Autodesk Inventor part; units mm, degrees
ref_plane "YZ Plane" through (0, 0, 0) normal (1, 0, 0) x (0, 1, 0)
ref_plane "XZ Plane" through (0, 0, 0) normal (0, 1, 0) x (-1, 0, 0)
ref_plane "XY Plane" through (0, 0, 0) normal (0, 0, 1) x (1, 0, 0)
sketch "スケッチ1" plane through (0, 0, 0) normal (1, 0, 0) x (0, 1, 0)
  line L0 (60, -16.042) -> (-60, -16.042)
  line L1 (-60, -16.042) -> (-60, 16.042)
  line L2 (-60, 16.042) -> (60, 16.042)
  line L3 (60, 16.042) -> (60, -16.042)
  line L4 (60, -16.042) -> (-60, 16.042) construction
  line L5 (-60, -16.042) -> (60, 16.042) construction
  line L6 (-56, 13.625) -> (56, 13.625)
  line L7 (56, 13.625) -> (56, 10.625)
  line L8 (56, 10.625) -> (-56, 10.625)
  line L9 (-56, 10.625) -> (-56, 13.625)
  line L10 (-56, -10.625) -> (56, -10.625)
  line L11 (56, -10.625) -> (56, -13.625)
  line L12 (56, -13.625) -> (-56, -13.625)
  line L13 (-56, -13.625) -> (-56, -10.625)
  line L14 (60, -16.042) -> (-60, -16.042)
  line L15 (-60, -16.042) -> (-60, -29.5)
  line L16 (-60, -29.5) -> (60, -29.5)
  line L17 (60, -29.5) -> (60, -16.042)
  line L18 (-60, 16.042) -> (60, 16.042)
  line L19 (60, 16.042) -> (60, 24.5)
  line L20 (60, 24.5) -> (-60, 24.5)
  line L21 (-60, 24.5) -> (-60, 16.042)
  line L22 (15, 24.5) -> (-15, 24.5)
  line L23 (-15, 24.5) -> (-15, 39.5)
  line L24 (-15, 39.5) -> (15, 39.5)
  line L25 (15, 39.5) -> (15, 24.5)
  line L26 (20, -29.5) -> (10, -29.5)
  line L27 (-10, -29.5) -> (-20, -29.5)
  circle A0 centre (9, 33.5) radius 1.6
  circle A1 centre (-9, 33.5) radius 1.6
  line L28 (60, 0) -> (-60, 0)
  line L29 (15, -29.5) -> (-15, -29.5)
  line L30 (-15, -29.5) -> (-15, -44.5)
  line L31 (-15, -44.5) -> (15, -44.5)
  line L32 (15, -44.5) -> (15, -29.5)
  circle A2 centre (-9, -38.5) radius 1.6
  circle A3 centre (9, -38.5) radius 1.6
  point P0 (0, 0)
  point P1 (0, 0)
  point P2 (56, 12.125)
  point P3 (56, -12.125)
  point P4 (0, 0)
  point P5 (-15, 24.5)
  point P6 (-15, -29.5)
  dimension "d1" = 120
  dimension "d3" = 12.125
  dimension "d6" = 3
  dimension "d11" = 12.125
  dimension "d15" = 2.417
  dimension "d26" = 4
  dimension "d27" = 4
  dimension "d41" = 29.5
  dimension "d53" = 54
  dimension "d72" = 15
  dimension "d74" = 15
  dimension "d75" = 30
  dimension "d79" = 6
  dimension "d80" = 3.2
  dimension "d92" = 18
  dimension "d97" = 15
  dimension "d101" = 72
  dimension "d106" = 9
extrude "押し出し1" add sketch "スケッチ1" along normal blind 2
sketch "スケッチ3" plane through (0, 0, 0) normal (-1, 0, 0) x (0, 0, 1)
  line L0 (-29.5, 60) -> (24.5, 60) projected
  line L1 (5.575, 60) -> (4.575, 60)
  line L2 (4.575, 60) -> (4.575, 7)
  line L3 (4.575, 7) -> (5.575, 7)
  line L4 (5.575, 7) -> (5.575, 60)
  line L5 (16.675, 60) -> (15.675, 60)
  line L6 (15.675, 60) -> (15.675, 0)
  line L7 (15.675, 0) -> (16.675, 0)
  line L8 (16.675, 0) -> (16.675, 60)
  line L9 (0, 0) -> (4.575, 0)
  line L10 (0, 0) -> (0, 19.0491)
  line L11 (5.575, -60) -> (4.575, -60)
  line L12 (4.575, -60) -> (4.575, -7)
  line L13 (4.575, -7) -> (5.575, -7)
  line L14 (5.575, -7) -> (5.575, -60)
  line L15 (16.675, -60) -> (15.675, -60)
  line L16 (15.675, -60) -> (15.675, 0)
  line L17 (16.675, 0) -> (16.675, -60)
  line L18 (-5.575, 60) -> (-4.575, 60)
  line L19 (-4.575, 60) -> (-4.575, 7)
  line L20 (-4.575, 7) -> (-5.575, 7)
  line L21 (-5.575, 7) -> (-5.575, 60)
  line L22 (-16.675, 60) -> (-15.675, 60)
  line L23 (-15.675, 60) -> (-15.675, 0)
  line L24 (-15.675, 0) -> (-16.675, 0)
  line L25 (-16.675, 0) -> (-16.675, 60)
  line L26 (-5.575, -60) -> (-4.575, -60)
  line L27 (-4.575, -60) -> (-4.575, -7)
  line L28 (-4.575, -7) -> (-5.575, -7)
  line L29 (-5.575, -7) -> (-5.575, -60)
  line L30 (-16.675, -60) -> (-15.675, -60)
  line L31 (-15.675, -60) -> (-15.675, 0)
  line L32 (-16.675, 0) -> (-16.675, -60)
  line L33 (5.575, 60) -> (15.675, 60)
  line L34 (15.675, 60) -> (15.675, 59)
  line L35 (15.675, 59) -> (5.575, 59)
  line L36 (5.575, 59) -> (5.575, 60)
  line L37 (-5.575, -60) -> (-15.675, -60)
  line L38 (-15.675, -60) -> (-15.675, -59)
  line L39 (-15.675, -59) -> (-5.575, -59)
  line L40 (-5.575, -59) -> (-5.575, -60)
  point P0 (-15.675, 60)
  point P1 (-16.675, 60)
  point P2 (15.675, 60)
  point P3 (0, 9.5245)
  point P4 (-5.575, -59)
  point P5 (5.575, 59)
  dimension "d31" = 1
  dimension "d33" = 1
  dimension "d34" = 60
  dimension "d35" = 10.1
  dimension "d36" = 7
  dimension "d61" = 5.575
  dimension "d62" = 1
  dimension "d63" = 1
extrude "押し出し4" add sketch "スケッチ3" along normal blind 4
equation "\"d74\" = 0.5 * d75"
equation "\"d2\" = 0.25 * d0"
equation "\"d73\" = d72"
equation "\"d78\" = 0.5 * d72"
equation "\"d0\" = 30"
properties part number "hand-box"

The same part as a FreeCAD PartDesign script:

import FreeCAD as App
import Part
import Sketcher

V = App.Vector

doc = App.newDocument("Part")
body = doc.addObject("PartDesign::Body", "Body")

sketch1 = body.newObject("Sketcher::SketchObject", "Sketch")
sketch1.AttachmentSupport = (doc.getObject("YZ_Plane"), [""])
sketch1.MapMode = "FlatFace"
sketch1.addGeometry(Part.LineSegment(V(60, -29.5, 0), V(60, 24.5, 0)), False)
sketch1.addGeometry(Part.LineSegment(V(60, 24.5, 0), V(15, 24.5, 0)), False)
sketch1.addGeometry(Part.LineSegment(V(15, 24.5, 0), V(15, 39.5, 0)), False)
sketch1.addGeometry(Part.LineSegment(V(15, 39.5, 0), V(-15, 39.5, 0)), False)
sketch1.addGeometry(Part.LineSegment(V(-15, 39.5, 0), V(-15, 24.5, 0)), False)
sketch1.addGeometry(Part.LineSegment(V(-15, 24.5, 0), V(-60, 24.5, 0)), False)
sketch1.addGeometry(Part.LineSegment(V(-60, 24.5, 0), V(-60, -29.5, 0)), False)
sketch1.addGeometry(Part.LineSegment(V(-60, -29.5, 0), V(-15, -29.5, 0)), False)
sketch1.addGeometry(Part.LineSegment(V(-15, -29.5, 0), V(-15, -44.5, 0)), False)
sketch1.addGeometry(Part.LineSegment(V(-15, -44.5, 0), V(15, -44.5, 0)), False)
sketch1.addGeometry(Part.LineSegment(V(15, -44.5, 0), V(15, -29.5, 0)), False)
sketch1.addGeometry(Part.LineSegment(V(15, -29.5, 0), V(60, -29.5, 0)), False)
sketch1.addGeometry(Part.Circle(V(9, -38.5, 0), V(0, 0, 1), 1.6), False)
sketch1.addGeometry(Part.Circle(V(-9, -38.5, 0), V(0, 0, 1), 1.6), False)
sketch1.addGeometry(Part.LineSegment(V(-56, -10.6, 0), V(56, -10.6, 0)), False)
sketch1.addGeometry(Part.LineSegment(V(56, -10.6, 0), V(56, -13.6, 0)), False)
sketch1.addGeometry(Part.LineSegment(V(56, -13.6, 0), V(-56, -13.6, 0)), False)
sketch1.addGeometry(Part.LineSegment(V(-56, -13.6, 0), V(-56, -10.6, 0)), False)
sketch1.addGeometry(Part.LineSegment(V(-56, 13.6, 0), V(56, 13.6, 0)), False)
sketch1.addGeometry(Part.LineSegment(V(56, 13.6, 0), V(56, 10.6, 0)), False)
sketch1.addGeometry(Part.LineSegment(V(56, 10.6, 0), V(-56, 10.6, 0)), False)
sketch1.addGeometry(Part.LineSegment(V(-56, 10.6, 0), V(-56, 13.6, 0)), False)
sketch1.addGeometry(Part.Circle(V(9, 33.5, 0), V(0, 0, 1), 1.6), False)
sketch1.addGeometry(Part.Circle(V(-9, 33.5, 0), V(0, 0, 1), 1.6), False)
sketch1.addConstraint(Sketcher.Constraint("Coincident", 0, 2, 1, 1))
sketch1.addConstraint(Sketcher.Constraint("Coincident", 1, 2, 2, 1))
sketch1.addConstraint(Sketcher.Constraint("Coincident", 2, 2, 3, 1))
sketch1.addConstraint(Sketcher.Constraint("Coincident", 3, 2, 4, 1))
sketch1.addConstraint(Sketcher.Constraint("Coincident", 4, 2, 5, 1))
sketch1.addConstraint(Sketcher.Constraint("Coincident", 5, 2, 6, 1))
sketch1.addConstraint(Sketcher.Constraint("Coincident", 6, 2, 7, 1))
sketch1.addConstraint(Sketcher.Constraint("Coincident", 7, 2, 8, 1))
sketch1.addConstraint(Sketcher.Constraint("Coincident", 8, 2, 9, 1))
sketch1.addConstraint(Sketcher.Constraint("Coincident", 9, 2, 10, 1))
sketch1.addConstraint(Sketcher.Constraint("Coincident", 10, 2, 11, 1))
sketch1.addConstraint(Sketcher.Constraint("Coincident", 11, 2, 0, 1))
sketch1.addConstraint(Sketcher.Constraint("Coincident", 14, 2, 15, 1))
sketch1.addConstraint(Sketcher.Constraint("Coincident", 15, 2, 16, 1))
sketch1.addConstraint(Sketcher.Constraint("Coincident", 16, 2, 17, 1))
sketch1.addConstraint(Sketcher.Constraint("Coincident", 17, 2, 14, 1))
sketch1.addConstraint(Sketcher.Constraint("Coincident", 18, 2, 19, 1))
sketch1.addConstraint(Sketcher.Constraint("Coincident", 19, 2, 20, 1))
sketch1.addConstraint(Sketcher.Constraint("Coincident", 20, 2, 21, 1))
sketch1.addConstraint(Sketcher.Constraint("Coincident", 21, 2, 18, 1))
sketch1.addConstraint(Sketcher.Constraint("Vertical", 0))
sketch1.addConstraint(Sketcher.Constraint("Horizontal", 1))
sketch1.addConstraint(Sketcher.Constraint("Vertical", 2))
sketch1.addConstraint(Sketcher.Constraint("Horizontal", 3))
sketch1.addConstraint(Sketcher.Constraint("Vertical", 4))
sketch1.addConstraint(Sketcher.Constraint("Horizontal", 5))
sketch1.addConstraint(Sketcher.Constraint("Vertical", 6))
sketch1.addConstraint(Sketcher.Constraint("Horizontal", 7))
sketch1.addConstraint(Sketcher.Constraint("Vertical", 8))
sketch1.addConstraint(Sketcher.Constraint("Horizontal", 9))
sketch1.addConstraint(Sketcher.Constraint("Vertical", 10))
sketch1.addConstraint(Sketcher.Constraint("Horizontal", 11))
sketch1.addConstraint(Sketcher.Constraint("Horizontal", 14))
sketch1.addConstraint(Sketcher.Constraint("Vertical", 15))
sketch1.addConstraint(Sketcher.Constraint("Horizontal", 16))
sketch1.addConstraint(Sketcher.Constraint("Vertical", 17))
sketch1.addConstraint(Sketcher.Constraint("Horizontal", 18))
sketch1.addConstraint(Sketcher.Constraint("Vertical", 19))
sketch1.addConstraint(Sketcher.Constraint("Horizontal", 20))
sketch1.addConstraint(Sketcher.Constraint("Vertical", 21))
sketch1.addConstraint(Sketcher.Constraint("Equal", 12, 13))
sketch1.addConstraint(Sketcher.Constraint("Equal", 13, 22))
sketch1.addConstraint(Sketcher.Constraint("Equal", 22, 23))
sketch1.addConstraint(Sketcher.Constraint("Symmetric", 16, 2, 18, 2, -1, 1))
sketch1.addConstraint(Sketcher.Constraint("Symmetric", 14, 2, 20, 2, -1, 1))
sketch1.addConstraint(Sketcher.Constraint("Symmetric", 12, 3, 13, 3, -2))
sketch1.addConstraint(Sketcher.Constraint("Symmetric", 22, 3, 23, 3, -2))
sketch1.addConstraint(Sketcher.Constraint("Symmetric", 1, 2, 4, 2, -2))
sketch1.addConstraint(Sketcher.Constraint("Symmetric", 7, 2, 10, 2, -2))
sketch1.addConstraint(Sketcher.Constraint("Vertical", 12, 3, 22, 3))
sketch1.addConstraint(Sketcher.Constraint("Vertical", 4, 2, 7, 2))
sketch1.addConstraint(Sketcher.Constraint("Vertical", 15, 2, 18, 2))
sketch1.addConstraint(Sketcher.Constraint("Equal", 1, 5))
sketch1.addConstraint(Sketcher.Constraint("Equal", 4, 8))
sketch1.addConstraint(Sketcher.Constraint("Diameter", 12, 3.2))
sketch1.addConstraint(Sketcher.Constraint("DistanceX", 3, 2, 3, 1, 30.0))
sketch1.addConstraint(Sketcher.Constraint("DistanceY", 0, 1, 0, 2, 54.0))
sketch1.addConstraint(Sketcher.Constraint("DistanceY", 2, 1, 2, 2, 15.0))
sketch1.addConstraint(Sketcher.Constraint("DistanceY", 15, 2, 15, 1, 3.0))
sketch1.addConstraint(Sketcher.Constraint("DistanceX", -1, 1, 12, 3, 9.0))
sketch1.addConstraint(Sketcher.Constraint("DistanceY", 12, 3, 22, 3, 72.0))
sketch1.addConstraint(Sketcher.Constraint("DistanceY", 0, 2, 22, 3, 9.0))
sketch1.addConstraint(Sketcher.Constraint("DistanceX", 14, 2, 11, 2, 4.0))
sketch1.addConstraint(Sketcher.Constraint("DistanceY", 6, 2, -1, 1, 29.5))
sketch1.addConstraint(Sketcher.Constraint("DistanceX", 1, 2, 1, 1, 45.0))
sketch1.addConstraint(Sketcher.Constraint("DistanceY", 14, 2, 18, 2, 24.25))
pad1 = body.newObject("PartDesign::Pad", "Pad")
pad1.Profile = sketch1
pad1.Length = 2

sketch2 = body.newObject("Sketcher::SketchObject", "Sketch001")
sketch2.AttachmentSupport = (doc.getObject("YZ_Plane"), [""])
sketch2.MapMode = "FlatFace"
sketch2.addGeometry(Part.LineSegment(V(60, 4.6, 0), V(7, 4.6, 0)), False)
sketch2.addGeometry(Part.LineSegment(V(7, 4.6, 0), V(7, 5.6, 0)), False)
sketch2.addGeometry(Part.LineSegment(V(7, 5.6, 0), V(59, 5.6, 0)), False)
sketch2.addGeometry(Part.LineSegment(V(59, 5.6, 0), V(59, 15.7, 0)), False)
sketch2.addGeometry(Part.LineSegment(V(59, 15.7, 0), V(-60, 15.7, 0)), False)
sketch2.addGeometry(Part.LineSegment(V(-60, 15.7, 0), V(-60, 16.7, 0)), False)
sketch2.addGeometry(Part.LineSegment(V(-60, 16.7, 0), V(60, 16.7, 0)), False)
sketch2.addGeometry(Part.LineSegment(V(60, 16.7, 0), V(60, 4.6, 0)), False)
sketch2.addGeometry(Part.LineSegment(V(60, -4.6, 0), V(60, -5.6, 0)), False)
sketch2.addGeometry(Part.LineSegment(V(60, -5.6, 0), V(7, -5.6, 0)), False)
sketch2.addGeometry(Part.LineSegment(V(7, -5.6, 0), V(7, -4.6, 0)), False)
sketch2.addGeometry(Part.LineSegment(V(7, -4.6, 0), V(60, -4.6, 0)), False)
sketch2.addGeometry(Part.LineSegment(V(60, -15.7, 0), V(60, -16.7, 0)), False)
sketch2.addGeometry(Part.LineSegment(V(60, -16.7, 0), V(-60, -16.7, 0)), False)
sketch2.addGeometry(Part.LineSegment(V(-60, -16.7, 0), V(-60, -4.6, 0)), False)
sketch2.addGeometry(Part.LineSegment(V(-60, -4.6, 0), V(-7, -4.6, 0)), False)
sketch2.addGeometry(Part.LineSegment(V(-7, -4.6, 0), V(-7, -5.6, 0)), False)
sketch2.addGeometry(Part.LineSegment(V(-7, -5.6, 0), V(-59, -5.6, 0)), False)
sketch2.addGeometry(Part.LineSegment(V(-59, -5.6, 0), V(-59, -15.7, 0)), False)
sketch2.addGeometry(Part.LineSegment(V(-59, -15.7, 0), V(60, -15.7, 0)), False)
sketch2.addGeometry(Part.LineSegment(V(-60, 4.6, 0), V(-60, 5.6, 0)), False)
sketch2.addGeometry(Part.LineSegment(V(-60, 5.6, 0), V(-7, 5.6, 0)), False)
sketch2.addGeometry(Part.LineSegment(V(-7, 5.6, 0), V(-7, 4.6, 0)), False)
sketch2.addGeometry(Part.LineSegment(V(-7, 4.6, 0), V(-60, 4.6, 0)), False)
sketch2.addConstraint(Sketcher.Constraint("Coincident", 0, 2, 1, 1))
sketch2.addConstraint(Sketcher.Constraint("Coincident", 1, 2, 2, 1))
sketch2.addConstraint(Sketcher.Constraint("Coincident", 2, 2, 3, 1))
sketch2.addConstraint(Sketcher.Constraint("Coincident", 3, 2, 4, 1))
sketch2.addConstraint(Sketcher.Constraint("Coincident", 4, 2, 5, 1))
sketch2.addConstraint(Sketcher.Constraint("Coincident", 5, 2, 6, 1))
sketch2.addConstraint(Sketcher.Constraint("Coincident", 6, 2, 7, 1))
sketch2.addConstraint(Sketcher.Constraint("Coincident", 7, 2, 0, 1))
sketch2.addConstraint(Sketcher.Constraint("Coincident", 8, 2, 9, 1))
sketch2.addConstraint(Sketcher.Constraint("Coincident", 9, 2, 10, 1))
sketch2.addConstraint(Sketcher.Constraint("Coincident", 10, 2, 11, 1))
sketch2.addConstraint(Sketcher.Constraint("Coincident", 11, 2, 8, 1))
sketch2.addConstraint(Sketcher.Constraint("Coincident", 12, 2, 13, 1))
sketch2.addConstraint(Sketcher.Constraint("Coincident", 13, 2, 14, 1))
sketch2.addConstraint(Sketcher.Constraint("Coincident", 14, 2, 15, 1))
sketch2.addConstraint(Sketcher.Constraint("Coincident", 15, 2, 16, 1))
sketch2.addConstraint(Sketcher.Constraint("Coincident", 16, 2, 17, 1))
sketch2.addConstraint(Sketcher.Constraint("Coincident", 17, 2, 18, 1))
sketch2.addConstraint(Sketcher.Constraint("Coincident", 18, 2, 19, 1))
sketch2.addConstraint(Sketcher.Constraint("Coincident", 19, 2, 12, 1))
sketch2.addConstraint(Sketcher.Constraint("Coincident", 20, 2, 21, 1))
sketch2.addConstraint(Sketcher.Constraint("Coincident", 21, 2, 22, 1))
sketch2.addConstraint(Sketcher.Constraint("Coincident", 22, 2, 23, 1))
sketch2.addConstraint(Sketcher.Constraint("Coincident", 23, 2, 20, 1))
sketch2.addConstraint(Sketcher.Constraint("Horizontal", 0))
sketch2.addConstraint(Sketcher.Constraint("Vertical", 1))
sketch2.addConstraint(Sketcher.Constraint("Horizontal", 2))
sketch2.addConstraint(Sketcher.Constraint("Vertical", 3))
sketch2.addConstraint(Sketcher.Constraint("Horizontal", 4))
sketch2.addConstraint(Sketcher.Constraint("Vertical", 5))
sketch2.addConstraint(Sketcher.Constraint("Horizontal", 6))
sketch2.addConstraint(Sketcher.Constraint("Vertical", 7))
sketch2.addConstraint(Sketcher.Constraint("Vertical", 8))
sketch2.addConstraint(Sketcher.Constraint("Horizontal", 9))
sketch2.addConstraint(Sketcher.Constraint("Vertical", 10))
sketch2.addConstraint(Sketcher.Constraint("Horizontal", 11))
sketch2.addConstraint(Sketcher.Constraint("Vertical", 12))
sketch2.addConstraint(Sketcher.Constraint("Horizontal", 13))
sketch2.addConstraint(Sketcher.Constraint("Vertical", 14))
sketch2.addConstraint(Sketcher.Constraint("Horizontal", 15))
sketch2.addConstraint(Sketcher.Constraint("Vertical", 16))
sketch2.addConstraint(Sketcher.Constraint("Horizontal", 17))
sketch2.addConstraint(Sketcher.Constraint("Vertical", 18))
sketch2.addConstraint(Sketcher.Constraint("Horizontal", 19))
sketch2.addConstraint(Sketcher.Constraint("Vertical", 20))
sketch2.addConstraint(Sketcher.Constraint("Horizontal", 21))
sketch2.addConstraint(Sketcher.Constraint("Vertical", 22))
sketch2.addConstraint(Sketcher.Constraint("Horizontal", 23))
sketch2.addConstraint(Sketcher.Constraint("Symmetric", 5, 2, 12, 2, -1, 1))
sketch2.addConstraint(Sketcher.Constraint("Symmetric", 7, 2, 14, 2, -1, 1))
sketch2.addConstraint(Sketcher.Constraint("Symmetric", 1, 2, 16, 2, -1, 1))
sketch2.addConstraint(Sketcher.Constraint("Symmetric", 3, 2, 18, 2, -1, 1))
sketch2.addConstraint(Sketcher.Constraint("Symmetric", 8, 2, 20, 2, -1, 1))
sketch2.addConstraint(Sketcher.Constraint("Symmetric", 10, 2, 22, 2, -1, 1))
sketch2.addConstraint(Sketcher.Constraint("Symmetric", 11, 2, 14, 2, -2))
sketch2.addConstraint(Sketcher.Constraint("Symmetric", 9, 2, 16, 2, -2))
sketch2.addConstraint(Sketcher.Constraint("Vertical", 11, 2, 12, 2))
sketch2.addConstraint(Sketcher.Constraint("Equal", 1, 5))
sketch2.addConstraint(Sketcher.Constraint("DistanceY", 1, 1, 1, 2, 1.0))
sketch2.addConstraint(Sketcher.Constraint("DistanceY", 3, 1, 3, 2, 10.1))
sketch2.addConstraint(Sketcher.Constraint("DistanceX", -1, 1, 0, 2, 7.0))
sketch2.addConstraint(Sketcher.Constraint("DistanceX", 4, 2, -1, 1, 60.0))
sketch2.addConstraint(Sketcher.Constraint("DistanceX", 3, 2, 6, 2, 1.0))
sketch2.addConstraint(Sketcher.Constraint("DistanceY", -1, 1, 1, 2, 5.575))
pad2 = body.newObject("PartDesign::Pad", "Pad001")
pad2.Profile = sketch2
pad2.Length = 4
pad2.Reversed = True

doc.recompute()
